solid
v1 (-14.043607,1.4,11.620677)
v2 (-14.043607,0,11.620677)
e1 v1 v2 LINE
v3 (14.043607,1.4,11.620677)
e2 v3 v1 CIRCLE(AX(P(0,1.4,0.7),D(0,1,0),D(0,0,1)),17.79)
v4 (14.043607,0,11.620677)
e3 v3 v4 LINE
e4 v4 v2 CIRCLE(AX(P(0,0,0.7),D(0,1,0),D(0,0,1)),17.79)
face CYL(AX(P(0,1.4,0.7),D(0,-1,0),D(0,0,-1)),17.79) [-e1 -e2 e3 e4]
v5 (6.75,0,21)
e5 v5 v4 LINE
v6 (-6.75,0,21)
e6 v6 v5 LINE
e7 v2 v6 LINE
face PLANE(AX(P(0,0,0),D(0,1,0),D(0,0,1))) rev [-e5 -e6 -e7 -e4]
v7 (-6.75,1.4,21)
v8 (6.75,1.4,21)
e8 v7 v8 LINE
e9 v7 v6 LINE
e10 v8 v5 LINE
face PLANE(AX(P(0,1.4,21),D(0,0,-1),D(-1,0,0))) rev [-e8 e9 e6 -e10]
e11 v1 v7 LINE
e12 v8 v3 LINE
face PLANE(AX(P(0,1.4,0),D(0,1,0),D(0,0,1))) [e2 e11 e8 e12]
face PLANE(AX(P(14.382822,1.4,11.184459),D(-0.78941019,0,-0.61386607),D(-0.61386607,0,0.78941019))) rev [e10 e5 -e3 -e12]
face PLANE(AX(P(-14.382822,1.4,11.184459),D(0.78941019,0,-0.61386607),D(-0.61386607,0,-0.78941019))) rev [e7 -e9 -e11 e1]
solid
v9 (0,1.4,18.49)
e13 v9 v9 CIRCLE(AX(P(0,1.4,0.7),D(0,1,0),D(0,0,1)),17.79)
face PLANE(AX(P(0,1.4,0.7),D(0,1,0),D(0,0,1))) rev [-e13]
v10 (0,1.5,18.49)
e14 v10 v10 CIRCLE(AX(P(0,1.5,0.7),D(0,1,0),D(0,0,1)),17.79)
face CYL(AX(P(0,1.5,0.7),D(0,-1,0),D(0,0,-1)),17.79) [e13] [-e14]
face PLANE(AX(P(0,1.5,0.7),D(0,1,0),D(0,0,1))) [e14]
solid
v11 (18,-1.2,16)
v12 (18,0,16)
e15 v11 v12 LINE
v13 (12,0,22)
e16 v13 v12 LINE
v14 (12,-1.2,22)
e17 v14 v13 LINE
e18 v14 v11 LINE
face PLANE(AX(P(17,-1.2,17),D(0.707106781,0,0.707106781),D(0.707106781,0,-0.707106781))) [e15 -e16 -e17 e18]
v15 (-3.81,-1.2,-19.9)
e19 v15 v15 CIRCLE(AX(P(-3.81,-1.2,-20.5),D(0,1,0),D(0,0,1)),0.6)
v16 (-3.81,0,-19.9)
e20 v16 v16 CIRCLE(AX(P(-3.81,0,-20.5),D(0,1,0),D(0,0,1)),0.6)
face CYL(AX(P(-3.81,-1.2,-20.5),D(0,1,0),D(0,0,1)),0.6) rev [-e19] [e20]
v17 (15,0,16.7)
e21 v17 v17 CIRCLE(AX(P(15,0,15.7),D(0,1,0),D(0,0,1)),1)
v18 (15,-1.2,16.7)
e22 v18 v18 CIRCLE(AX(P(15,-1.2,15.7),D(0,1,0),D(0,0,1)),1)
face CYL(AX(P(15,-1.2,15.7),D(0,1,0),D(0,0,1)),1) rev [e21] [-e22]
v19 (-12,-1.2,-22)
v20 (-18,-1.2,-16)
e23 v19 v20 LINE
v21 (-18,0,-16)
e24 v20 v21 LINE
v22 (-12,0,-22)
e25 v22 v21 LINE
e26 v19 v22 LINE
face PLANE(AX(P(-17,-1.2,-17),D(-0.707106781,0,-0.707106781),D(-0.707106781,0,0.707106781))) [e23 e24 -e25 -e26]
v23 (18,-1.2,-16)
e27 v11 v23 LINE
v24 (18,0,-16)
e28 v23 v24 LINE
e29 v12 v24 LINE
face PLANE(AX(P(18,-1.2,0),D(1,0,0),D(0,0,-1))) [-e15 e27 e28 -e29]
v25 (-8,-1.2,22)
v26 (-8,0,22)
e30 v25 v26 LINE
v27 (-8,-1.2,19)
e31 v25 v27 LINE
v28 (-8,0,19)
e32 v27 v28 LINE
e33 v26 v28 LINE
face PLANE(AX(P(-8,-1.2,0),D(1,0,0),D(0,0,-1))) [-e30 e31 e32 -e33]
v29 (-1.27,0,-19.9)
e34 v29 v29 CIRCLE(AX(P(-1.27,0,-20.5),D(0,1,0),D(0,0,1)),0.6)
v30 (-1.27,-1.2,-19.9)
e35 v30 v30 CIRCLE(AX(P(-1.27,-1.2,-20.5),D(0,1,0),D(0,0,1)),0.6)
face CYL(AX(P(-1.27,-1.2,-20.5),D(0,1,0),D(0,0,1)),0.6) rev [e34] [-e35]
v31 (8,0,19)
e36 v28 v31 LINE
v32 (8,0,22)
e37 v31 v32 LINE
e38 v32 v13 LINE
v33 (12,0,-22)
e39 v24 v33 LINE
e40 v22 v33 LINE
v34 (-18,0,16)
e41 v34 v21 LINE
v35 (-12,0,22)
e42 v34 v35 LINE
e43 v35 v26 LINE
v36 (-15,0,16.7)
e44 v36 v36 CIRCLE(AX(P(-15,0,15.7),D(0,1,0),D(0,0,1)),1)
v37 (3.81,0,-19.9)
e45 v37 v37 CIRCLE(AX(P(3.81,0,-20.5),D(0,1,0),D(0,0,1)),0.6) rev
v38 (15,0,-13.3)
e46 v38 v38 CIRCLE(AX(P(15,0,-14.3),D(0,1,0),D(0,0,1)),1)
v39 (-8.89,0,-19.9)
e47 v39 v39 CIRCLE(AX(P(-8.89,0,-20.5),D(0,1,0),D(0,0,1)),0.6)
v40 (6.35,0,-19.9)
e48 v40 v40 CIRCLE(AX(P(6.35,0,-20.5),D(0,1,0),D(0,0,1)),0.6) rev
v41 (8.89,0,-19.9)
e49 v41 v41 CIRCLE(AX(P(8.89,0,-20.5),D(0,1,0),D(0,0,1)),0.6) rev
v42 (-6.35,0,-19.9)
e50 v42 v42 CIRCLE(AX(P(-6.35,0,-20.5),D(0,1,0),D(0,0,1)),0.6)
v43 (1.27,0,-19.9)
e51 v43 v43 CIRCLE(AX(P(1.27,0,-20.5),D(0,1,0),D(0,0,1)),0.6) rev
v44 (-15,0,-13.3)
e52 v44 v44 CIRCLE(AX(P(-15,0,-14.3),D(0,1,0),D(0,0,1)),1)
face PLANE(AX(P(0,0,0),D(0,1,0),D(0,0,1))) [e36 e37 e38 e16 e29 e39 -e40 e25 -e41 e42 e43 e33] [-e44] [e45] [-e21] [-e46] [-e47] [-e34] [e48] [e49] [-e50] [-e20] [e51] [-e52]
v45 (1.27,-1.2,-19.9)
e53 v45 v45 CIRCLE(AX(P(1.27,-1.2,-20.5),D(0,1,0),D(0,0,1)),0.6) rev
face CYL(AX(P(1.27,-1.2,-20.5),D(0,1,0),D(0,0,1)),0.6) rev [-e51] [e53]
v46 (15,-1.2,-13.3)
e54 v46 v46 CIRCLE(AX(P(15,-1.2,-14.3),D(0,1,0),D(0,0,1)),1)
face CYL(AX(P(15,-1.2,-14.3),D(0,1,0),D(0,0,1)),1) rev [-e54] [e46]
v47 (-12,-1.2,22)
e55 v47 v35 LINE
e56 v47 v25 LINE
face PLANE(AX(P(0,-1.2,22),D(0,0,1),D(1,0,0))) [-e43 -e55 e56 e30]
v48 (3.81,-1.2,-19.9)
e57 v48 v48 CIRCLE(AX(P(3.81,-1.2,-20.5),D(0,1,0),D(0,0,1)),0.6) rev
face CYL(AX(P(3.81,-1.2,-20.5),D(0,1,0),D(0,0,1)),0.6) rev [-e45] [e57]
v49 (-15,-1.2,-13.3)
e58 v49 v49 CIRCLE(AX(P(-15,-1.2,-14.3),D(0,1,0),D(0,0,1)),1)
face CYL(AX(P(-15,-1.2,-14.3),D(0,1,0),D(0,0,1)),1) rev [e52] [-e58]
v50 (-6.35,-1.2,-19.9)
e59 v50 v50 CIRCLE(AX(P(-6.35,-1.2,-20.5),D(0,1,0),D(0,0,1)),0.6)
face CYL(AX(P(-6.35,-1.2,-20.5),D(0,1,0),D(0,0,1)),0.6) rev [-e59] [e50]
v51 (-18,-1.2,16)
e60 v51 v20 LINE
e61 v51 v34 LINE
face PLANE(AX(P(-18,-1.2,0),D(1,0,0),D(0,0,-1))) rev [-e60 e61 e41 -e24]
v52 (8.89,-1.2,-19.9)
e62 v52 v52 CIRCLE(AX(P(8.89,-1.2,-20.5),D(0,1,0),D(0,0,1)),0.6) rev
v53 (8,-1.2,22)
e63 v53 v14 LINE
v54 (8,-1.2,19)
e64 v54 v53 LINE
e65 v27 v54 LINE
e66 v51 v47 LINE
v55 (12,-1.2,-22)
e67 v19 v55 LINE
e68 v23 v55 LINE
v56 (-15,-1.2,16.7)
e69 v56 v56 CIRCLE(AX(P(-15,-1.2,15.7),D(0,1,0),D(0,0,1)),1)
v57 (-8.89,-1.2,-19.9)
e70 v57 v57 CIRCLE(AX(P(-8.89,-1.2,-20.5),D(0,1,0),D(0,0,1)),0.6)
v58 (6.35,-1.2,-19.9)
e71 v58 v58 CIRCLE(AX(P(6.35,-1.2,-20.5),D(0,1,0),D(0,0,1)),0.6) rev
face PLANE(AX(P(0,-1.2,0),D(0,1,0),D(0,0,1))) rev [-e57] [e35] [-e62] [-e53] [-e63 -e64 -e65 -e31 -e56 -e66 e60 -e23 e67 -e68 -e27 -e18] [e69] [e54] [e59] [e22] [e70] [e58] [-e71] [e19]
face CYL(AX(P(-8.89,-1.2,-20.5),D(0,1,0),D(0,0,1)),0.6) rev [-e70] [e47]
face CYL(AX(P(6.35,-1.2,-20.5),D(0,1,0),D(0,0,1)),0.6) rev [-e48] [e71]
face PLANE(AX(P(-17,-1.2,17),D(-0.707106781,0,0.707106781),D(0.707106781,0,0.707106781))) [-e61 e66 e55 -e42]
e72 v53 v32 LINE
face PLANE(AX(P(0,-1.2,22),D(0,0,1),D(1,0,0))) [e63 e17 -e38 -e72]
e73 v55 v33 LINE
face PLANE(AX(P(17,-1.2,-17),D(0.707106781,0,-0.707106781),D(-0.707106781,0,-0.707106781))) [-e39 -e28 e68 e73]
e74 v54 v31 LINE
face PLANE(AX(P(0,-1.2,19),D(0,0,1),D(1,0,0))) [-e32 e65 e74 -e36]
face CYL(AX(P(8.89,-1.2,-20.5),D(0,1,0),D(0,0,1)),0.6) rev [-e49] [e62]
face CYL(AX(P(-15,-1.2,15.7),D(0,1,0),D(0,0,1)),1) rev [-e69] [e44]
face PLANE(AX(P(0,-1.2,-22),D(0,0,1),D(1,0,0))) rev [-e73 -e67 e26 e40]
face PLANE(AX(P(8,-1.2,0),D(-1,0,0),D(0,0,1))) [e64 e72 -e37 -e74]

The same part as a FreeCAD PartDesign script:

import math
import FreeCAD as App
import Part
import Sketcher
from FreeCAD import Vector
Q = App.Units.Quantity


def add_polygon(sketch, points):
    """Adds a closed chain of lines whose ends are joined by coincident constraints."""
    first, n = sketch.GeometryCount, len(points)
    for a, b in zip(points, points[1:] + points[:1]):
        sketch.addGeometry(Part.LineSegment(App.Vector(*a, 0), App.Vector(*b, 0)), False)
    for i in range(n):
        sketch.addConstraint(Sketcher.Constraint("Coincident", first + i, 2, first + (i + 1) % n, 1))

doc = App.newDocument("Part")
params = doc.addObject("Spreadsheet::Sheet", "Params")
for row, (alias, value) in enumerate([
    ("sketch1_diameter", "2 mm"),
    ("sketch1_diameter2", "1.2 mm"),
    ("sketch1_width", "4 mm"),
    ("sketch1_width2", "16 mm"),
    ("sketch1_height", "32 mm"),
    ("pad1_length", "1.2 mm"),
    ("sketch2_radius", "17.79 mm"),
    ("sketch2_width", "13.5 mm"),
    ("pad2_length", "1.4 mm"),
    ("sketch3_diameter", "35.58 mm"),
    ("pad3_length", "0.1 mm"),
], start=1):
    params.set(f"A{row}", alias)
    params.set(f"B{row}", "=" + value)
    params.setAlias(f"B{row}", alias)

body = doc.addObject("PartDesign::Body", "Body")

# Sketch on XZ plane
sketch1 = body.newObject("Sketcher::SketchObject", "Sketch")
sketch1.AttachmentSupport = (doc.getObject("XZ_Plane"), [""])
sketch1.MapMode = "FlatFace"
add_polygon(sketch1, [(-18, -16), (-18, 16), (-12, 22), (-8, 22), (-8, 19), (8, 19), (8, 22), (12, 22), (18, 16), (18, -16), (12, -22), (-12, -22)])  # lines 0-11
sketch1.addGeometry(Part.Circle(Vector(-15, 15.7, 0), Vector(0, 0, 1), 1), False)  # 12
sketch1.addGeometry(Part.Circle(Vector(15, 15.7, 0), Vector(0, 0, 1), 1), False)  # 13
sketch1.addGeometry(Part.Circle(Vector(-15, -14.3, 0), Vector(0, 0, 1), 1), False)  # 14
sketch1.addGeometry(Part.Circle(Vector(-8.9, -20.5, 0), Vector(0, 0, 1), 0.6), False)  # 15
sketch1.addGeometry(Part.Circle(Vector(-6.3, -20.5, 0), Vector(0, 0, 1), 0.6), False)  # 16
sketch1.addGeometry(Part.Circle(Vector(-3.8, -20.5, 0), Vector(0, 0, 1), 0.6), False)  # 17
sketch1.addGeometry(Part.Circle(Vector(-1.3, -20.5, 0), Vector(0, 0, 1), 0.6), False)  # 18
sketch1.addGeometry(Part.Circle(Vector(1.3, -20.5, 0), Vector(0, 0, 1), 0.6), False)  # 19
sketch1.addGeometry(Part.Circle(Vector(3.8, -20.5, 0), Vector(0, 0, 1), 0.6), False)  # 20
sketch1.addGeometry(Part.Circle(Vector(6.3, -20.5, 0), Vector(0, 0, 1), 0.6), False)  # 21
sketch1.addGeometry(Part.Circle(Vector(15, -14.3, 0), Vector(0, 0, 1), 1), False)  # 22
sketch1.addGeometry(Part.Circle(Vector(8.9, -20.5, 0), Vector(0, 0, 1), 0.6), False)  # 23
sketch1.addConstraint([
    Sketcher.Constraint("Vertical", 0),
    Sketcher.Constraint("Horizontal", 2),
    Sketcher.Constraint("Vertical", 3),
    Sketcher.Constraint("Horizontal", 4),
    Sketcher.Constraint("Vertical", 5),
    Sketcher.Constraint("Horizontal", 6),
    Sketcher.Constraint("Vertical", 8),
    Sketcher.Constraint("Horizontal", 10),
    Sketcher.Constraint("Equal", 12, 13),
    Sketcher.Constraint("Equal", 13, 14),
    Sketcher.Constraint("Equal", 15, 16),
    Sketcher.Constraint("Equal", 16, 17),
    Sketcher.Constraint("Equal", 17, 18),
    Sketcher.Constraint("Equal", 18, 19),
    Sketcher.Constraint("Equal", 19, 20),
    Sketcher.Constraint("Equal", 20, 21),
    Sketcher.Constraint("Equal", 14, 22),
    Sketcher.Constraint("Equal", 21, 23),
    Sketcher.Constraint("Symmetric", 0, 2, 8, 2, -1, 1),
    Sketcher.Constraint("Symmetric", 1, 2, 9, 2, -1, 1),
    Sketcher.Constraint("Symmetric", 6, 2, 10, 2, -1, 1),
    Sketcher.Constraint("Symmetric", 12, 3, 13, 3, -2),
    Sketcher.Constraint("Symmetric", 18, 3, 19, 3, -2),
    Sketcher.Constraint("Symmetric", 17, 3, 20, 3, -2),
    Sketcher.Constraint("Symmetric", 16, 3, 21, 3, -2),
    Sketcher.Constraint("Symmetric", 14, 3, 22, 3, -2),
    Sketcher.Constraint("Symmetric", 15, 3, 23, 3, -2),
    Sketcher.Constraint("Perpendicular", 1, 7),
    Sketcher.Constraint("Perpendicular", 9, 11),
    Sketcher.Constraint("Horizontal", 15, 3, 16, 3),
    Sketcher.Constraint("Horizontal", 16, 3, 17, 3),
    Sketcher.Constraint("Horizontal", 17, 3, 18, 3),
    Sketcher.Constraint("Horizontal", 0, 2, 7, 2),
    Sketcher.Constraint("Vertical", 12, 3, 14, 3),
    Sketcher.Constraint("Vertical", 6, 2, 9, 2),
    Sketcher.Constraint("Equal", 2, 6),
    Sketcher.Constraint("Diameter", 12, Q("2 mm")),
    Sketcher.Constraint("Diameter", 15, Q("1.2 mm")),
    Sketcher.Constraint("DistanceX", 2, 1, 2, 2, Q("4 mm")),
    Sketcher.Constraint("DistanceX", 4, 1, 4, 2, Q("16 mm")),
    Sketcher.Constraint("DistanceY", 0, 1, 0, 2, Q("32 mm")),
    Sketcher.Constraint("DistanceY", 3, 2, 3, 1, Q("3 mm")),
    Sketcher.Constraint("DistanceX", 12, 3, -1, 1, Q("15 mm")),
    Sketcher.Constraint("DistanceX", 0, 2, -1, 1, Q("18 mm")),
    Sketcher.Constraint("DistanceY", 14, 3, 12, 3, Q("30 mm")),
    Sketcher.Constraint("DistanceY", -1, 1, 12, 3, Q("15.7 mm")),
    Sketcher.Constraint("DistanceY", 15, 3, -1, 1, Q("20.5 mm")),
    Sketcher.Constraint("DistanceX", 15, 3, 20, 3, Q("12.7 mm")),
    Sketcher.Constraint("DistanceX", 16, 3, 21, 3, Q("12.7 mm")),
    Sketcher.Constraint("DistanceX", 15, 3, -1, 1, Q("8.89 mm")),
    Sketcher.Constraint("DistanceX", 18, 3, -1, 1, Q("1.27 mm")),
])
sketch1.setExpression("Constraints[48]", "Params.sketch1_diameter")
sketch1.setExpression("Constraints[49]", "Params.sketch1_diameter2")
sketch1.setExpression("Constraints[50]", "Params.sketch1_width")
sketch1.setExpression("Constraints[51]", "Params.sketch1_width2")
sketch1.setExpression("Constraints[52]", "Params.sketch1_height")
pad1 = body.newObject("PartDesign::Pad", "Pad")
pad1.Profile = sketch1
pad1.setExpression("Length", "Params.pad1_length")
body2 = doc.addObject("PartDesign::Body", "Body001")

# Sketch on XZ plane
sketch2 = body2.newObject("Sketcher::SketchObject", "Sketch001")
sketch2.AttachmentSupport = (doc.getObject("XZ_Plane001"), [""])
sketch2.MapMode = "FlatFace"
sketch2.addGeometry([
    Part.LineSegment(Vector(-14, 11.6, 0), Vector(-8, 19.4, 0)),  # 0
    Part.LineSegment(Vector(-8, 19.4, 0), Vector(-6.8, 21, 0)),  # 1
    Part.LineSegment(Vector(-6.8, 21, 0), Vector(6.8, 21, 0)),  # 2
    Part.LineSegment(Vector(6.8, 21, 0), Vector(8, 19.4, 0)),  # 3
    Part.LineSegment(Vector(8, 19.4, 0), Vector(14, 11.6, 0)),  # 4
    Part.ArcOfCircle(Part.Circle(Vector(0, 0.7, 0), Vector(0, 0, 1), 17.8), math.radians(142), math.radians(398)),  # 5
], False)
sketch2.addConstraint([
    Sketcher.Constraint("Coincident", 0, 2, 1, 1),
    Sketcher.Constraint("Coincident", 1, 2, 2, 1),
    Sketcher.Constraint("Coincident", 2, 2, 3, 1),
    Sketcher.Constraint("Coincident", 3, 2, 4, 1),
    Sketcher.Constraint("Tangent", 4, 2, 5, 2),
    Sketcher.Constraint("Tangent", 5, 1, 0, 1),
    Sketcher.Constraint("Horizontal", 2),
    Sketcher.Constraint("Symmetric", 0, 2, 3, 2, -2),
    Sketcher.Constraint("PointOnObject", 5, 3, -2),
    Sketcher.Constraint("Parallel", 0, 1),
    Sketcher.Constraint("Parallel", 3, 4),
    Sketcher.Constraint("Radius", 5, Q("17.79 mm")),
    Sketcher.Constraint("DistanceX", 2, 1, 2, 2, Q("13.5 mm")),
    Sketcher.Constraint("DistanceX", 0, 2, -1, 1, Q("8 mm")),
    Sketcher.Constraint("DistanceY", -1, 1, 1, 2, Q("21 mm")),
    Sketcher.Constraint("DistanceY", -1, 1, 5, 3, Q("0.7 mm")),
])
sketch2.setExpression("Constraints[11]", "Params.sketch2_radius")
sketch2.setExpression("Constraints[12]", "Params.sketch2_width")
pad2 = body2.newObject("PartDesign::Pad", "Pad001")
pad2.Profile = sketch2
pad2.setExpression("Length", "Params.pad2_length")
pad2.Reversed = True
body3 = doc.addObject("PartDesign::Body", "Body002")

# Sketch on XZ plane
sketch3 = body3.newObject("Sketcher::SketchObject", "Sketch002")
sketch3.AttachmentSupport = (doc.getObject("XZ_Plane002"), [""])
sketch3.MapMode = "FlatFace"
sketch3.AttachmentOffset = App.Placement(Vector(0, 0, -1.4), App.Rotation())
sketch3.addGeometry(Part.Circle(Vector(0, 1, 0), Vector(0, 0, 1), 18), False)
sketch3.addConstraint([
    Sketcher.Constraint("PointOnObject", 0, 3, -2),
    Sketcher.Constraint("Diameter", 0, Q("35.58 mm")),
    Sketcher.Constraint("DistanceY", -1, 1, 0, 3, Q("0.7 mm")),
])
sketch3.setExpression("Constraints[1]", "Params.sketch3_diameter")
pad3 = body3.newObject("PartDesign::Pad", "Pad002")
pad3.Profile = sketch3
pad3.setExpression("Length", "Params.pad3_length")
pad3.Reversed = True

doc.recompute()
